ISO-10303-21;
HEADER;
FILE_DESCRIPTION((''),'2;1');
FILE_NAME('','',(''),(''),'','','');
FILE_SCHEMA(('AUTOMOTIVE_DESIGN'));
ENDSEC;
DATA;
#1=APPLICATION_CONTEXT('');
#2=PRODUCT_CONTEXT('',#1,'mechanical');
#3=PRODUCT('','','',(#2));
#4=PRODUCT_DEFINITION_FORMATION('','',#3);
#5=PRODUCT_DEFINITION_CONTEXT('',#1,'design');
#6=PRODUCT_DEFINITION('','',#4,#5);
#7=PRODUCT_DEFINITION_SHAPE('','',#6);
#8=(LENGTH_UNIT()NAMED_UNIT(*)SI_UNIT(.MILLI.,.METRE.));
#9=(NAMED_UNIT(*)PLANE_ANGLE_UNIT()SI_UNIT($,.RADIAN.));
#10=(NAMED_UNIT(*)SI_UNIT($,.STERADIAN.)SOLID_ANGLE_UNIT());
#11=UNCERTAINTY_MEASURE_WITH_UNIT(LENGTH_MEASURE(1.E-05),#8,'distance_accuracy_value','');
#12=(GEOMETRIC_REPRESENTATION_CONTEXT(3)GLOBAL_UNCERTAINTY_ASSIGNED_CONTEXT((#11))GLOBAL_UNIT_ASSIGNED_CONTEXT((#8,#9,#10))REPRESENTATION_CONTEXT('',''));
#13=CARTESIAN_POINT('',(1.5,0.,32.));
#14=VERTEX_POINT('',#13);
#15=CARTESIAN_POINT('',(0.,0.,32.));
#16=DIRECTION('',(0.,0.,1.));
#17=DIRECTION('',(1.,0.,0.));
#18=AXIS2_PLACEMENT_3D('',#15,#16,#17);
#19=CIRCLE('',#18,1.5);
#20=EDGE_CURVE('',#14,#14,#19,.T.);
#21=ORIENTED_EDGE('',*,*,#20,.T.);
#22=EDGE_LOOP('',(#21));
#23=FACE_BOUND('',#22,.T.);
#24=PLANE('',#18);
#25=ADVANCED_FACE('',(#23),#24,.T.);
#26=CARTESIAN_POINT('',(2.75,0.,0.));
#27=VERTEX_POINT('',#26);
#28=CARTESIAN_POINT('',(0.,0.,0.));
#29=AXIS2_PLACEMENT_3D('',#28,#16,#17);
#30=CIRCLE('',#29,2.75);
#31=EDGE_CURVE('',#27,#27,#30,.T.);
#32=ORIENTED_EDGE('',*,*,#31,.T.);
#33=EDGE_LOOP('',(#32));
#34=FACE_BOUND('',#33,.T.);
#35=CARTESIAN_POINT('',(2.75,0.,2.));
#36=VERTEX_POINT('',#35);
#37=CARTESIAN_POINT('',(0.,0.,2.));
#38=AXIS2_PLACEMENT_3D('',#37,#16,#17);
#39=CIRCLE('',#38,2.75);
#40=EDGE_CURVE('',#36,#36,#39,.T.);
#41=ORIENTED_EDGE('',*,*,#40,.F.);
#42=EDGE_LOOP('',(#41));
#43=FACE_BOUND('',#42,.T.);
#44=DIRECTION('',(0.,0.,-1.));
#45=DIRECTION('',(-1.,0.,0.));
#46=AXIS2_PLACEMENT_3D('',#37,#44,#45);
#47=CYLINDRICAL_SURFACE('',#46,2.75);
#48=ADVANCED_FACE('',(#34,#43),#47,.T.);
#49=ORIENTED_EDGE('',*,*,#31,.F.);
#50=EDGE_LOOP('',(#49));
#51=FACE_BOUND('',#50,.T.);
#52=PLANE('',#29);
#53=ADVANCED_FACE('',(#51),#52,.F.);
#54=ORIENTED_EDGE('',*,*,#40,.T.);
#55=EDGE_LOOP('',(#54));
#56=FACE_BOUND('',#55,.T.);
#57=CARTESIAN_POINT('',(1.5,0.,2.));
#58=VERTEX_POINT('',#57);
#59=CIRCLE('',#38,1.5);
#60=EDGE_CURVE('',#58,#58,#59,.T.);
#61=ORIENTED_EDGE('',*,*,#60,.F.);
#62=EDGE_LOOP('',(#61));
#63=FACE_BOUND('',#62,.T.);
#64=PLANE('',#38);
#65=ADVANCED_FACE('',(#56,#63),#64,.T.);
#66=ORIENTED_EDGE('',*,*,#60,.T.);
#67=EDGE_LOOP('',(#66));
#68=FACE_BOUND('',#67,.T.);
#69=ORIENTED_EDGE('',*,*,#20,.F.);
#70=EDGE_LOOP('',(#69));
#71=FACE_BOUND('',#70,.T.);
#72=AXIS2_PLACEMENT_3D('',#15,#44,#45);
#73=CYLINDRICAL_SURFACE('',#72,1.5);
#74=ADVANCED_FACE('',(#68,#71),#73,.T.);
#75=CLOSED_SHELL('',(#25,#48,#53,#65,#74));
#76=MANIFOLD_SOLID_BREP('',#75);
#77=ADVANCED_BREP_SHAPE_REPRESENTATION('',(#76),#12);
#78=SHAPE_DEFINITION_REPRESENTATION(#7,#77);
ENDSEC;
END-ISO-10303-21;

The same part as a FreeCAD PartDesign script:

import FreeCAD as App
import Part
import Sketcher
from FreeCAD import Vector

doc = App.newDocument("Part")
body = doc.addObject("PartDesign::Body", "Body")

sketch1 = doc.addObject("Sketcher::SketchObject", "Sketch")
body.addObject(sketch1)
sketch1.AttachmentSupport = (doc.XY_Plane, [""])
sketch1.MapMode = "FlatFace"
sketch1.addGeometry(Part.Circle(Vector(0, 0, 0), Vector(0, 0, 1), 2.75), False)
sketch1.addConstraint([
    Sketcher.Constraint("Coincident", 0, 3, -1, 1),
    Sketcher.Constraint("Diameter", 0, 5.5),
])
pad1 = doc.addObject("PartDesign::Pad", "Pad")
body.addObject(pad1)
pad1.Profile = sketch1
pad1.Length = 2

sketch2 = doc.addObject("Sketcher::SketchObject", "Sketch001")
body.addObject(sketch2)
sketch2.AttachmentSupport = (doc.XY_Plane, [""])
sketch2.MapMode = "FlatFace"
sketch2.AttachmentOffset = App.Placement(Vector(0, 0, 2), App.Rotation())
sketch2.addGeometry(Part.Circle(Vector(0, 0, 0), Vector(0, 0, 1), 1.5), False)
sketch2.addConstraint([
    Sketcher.Constraint("Coincident", 0, 3, -1, 1),
    Sketcher.Constraint("Diameter", 0, 3.0),
])
pad2 = doc.addObject("PartDesign::Pad", "Pad001")
body.addObject(pad2)
pad2.Profile = sketch2
pad2.Length = 30

doc.recompute()
